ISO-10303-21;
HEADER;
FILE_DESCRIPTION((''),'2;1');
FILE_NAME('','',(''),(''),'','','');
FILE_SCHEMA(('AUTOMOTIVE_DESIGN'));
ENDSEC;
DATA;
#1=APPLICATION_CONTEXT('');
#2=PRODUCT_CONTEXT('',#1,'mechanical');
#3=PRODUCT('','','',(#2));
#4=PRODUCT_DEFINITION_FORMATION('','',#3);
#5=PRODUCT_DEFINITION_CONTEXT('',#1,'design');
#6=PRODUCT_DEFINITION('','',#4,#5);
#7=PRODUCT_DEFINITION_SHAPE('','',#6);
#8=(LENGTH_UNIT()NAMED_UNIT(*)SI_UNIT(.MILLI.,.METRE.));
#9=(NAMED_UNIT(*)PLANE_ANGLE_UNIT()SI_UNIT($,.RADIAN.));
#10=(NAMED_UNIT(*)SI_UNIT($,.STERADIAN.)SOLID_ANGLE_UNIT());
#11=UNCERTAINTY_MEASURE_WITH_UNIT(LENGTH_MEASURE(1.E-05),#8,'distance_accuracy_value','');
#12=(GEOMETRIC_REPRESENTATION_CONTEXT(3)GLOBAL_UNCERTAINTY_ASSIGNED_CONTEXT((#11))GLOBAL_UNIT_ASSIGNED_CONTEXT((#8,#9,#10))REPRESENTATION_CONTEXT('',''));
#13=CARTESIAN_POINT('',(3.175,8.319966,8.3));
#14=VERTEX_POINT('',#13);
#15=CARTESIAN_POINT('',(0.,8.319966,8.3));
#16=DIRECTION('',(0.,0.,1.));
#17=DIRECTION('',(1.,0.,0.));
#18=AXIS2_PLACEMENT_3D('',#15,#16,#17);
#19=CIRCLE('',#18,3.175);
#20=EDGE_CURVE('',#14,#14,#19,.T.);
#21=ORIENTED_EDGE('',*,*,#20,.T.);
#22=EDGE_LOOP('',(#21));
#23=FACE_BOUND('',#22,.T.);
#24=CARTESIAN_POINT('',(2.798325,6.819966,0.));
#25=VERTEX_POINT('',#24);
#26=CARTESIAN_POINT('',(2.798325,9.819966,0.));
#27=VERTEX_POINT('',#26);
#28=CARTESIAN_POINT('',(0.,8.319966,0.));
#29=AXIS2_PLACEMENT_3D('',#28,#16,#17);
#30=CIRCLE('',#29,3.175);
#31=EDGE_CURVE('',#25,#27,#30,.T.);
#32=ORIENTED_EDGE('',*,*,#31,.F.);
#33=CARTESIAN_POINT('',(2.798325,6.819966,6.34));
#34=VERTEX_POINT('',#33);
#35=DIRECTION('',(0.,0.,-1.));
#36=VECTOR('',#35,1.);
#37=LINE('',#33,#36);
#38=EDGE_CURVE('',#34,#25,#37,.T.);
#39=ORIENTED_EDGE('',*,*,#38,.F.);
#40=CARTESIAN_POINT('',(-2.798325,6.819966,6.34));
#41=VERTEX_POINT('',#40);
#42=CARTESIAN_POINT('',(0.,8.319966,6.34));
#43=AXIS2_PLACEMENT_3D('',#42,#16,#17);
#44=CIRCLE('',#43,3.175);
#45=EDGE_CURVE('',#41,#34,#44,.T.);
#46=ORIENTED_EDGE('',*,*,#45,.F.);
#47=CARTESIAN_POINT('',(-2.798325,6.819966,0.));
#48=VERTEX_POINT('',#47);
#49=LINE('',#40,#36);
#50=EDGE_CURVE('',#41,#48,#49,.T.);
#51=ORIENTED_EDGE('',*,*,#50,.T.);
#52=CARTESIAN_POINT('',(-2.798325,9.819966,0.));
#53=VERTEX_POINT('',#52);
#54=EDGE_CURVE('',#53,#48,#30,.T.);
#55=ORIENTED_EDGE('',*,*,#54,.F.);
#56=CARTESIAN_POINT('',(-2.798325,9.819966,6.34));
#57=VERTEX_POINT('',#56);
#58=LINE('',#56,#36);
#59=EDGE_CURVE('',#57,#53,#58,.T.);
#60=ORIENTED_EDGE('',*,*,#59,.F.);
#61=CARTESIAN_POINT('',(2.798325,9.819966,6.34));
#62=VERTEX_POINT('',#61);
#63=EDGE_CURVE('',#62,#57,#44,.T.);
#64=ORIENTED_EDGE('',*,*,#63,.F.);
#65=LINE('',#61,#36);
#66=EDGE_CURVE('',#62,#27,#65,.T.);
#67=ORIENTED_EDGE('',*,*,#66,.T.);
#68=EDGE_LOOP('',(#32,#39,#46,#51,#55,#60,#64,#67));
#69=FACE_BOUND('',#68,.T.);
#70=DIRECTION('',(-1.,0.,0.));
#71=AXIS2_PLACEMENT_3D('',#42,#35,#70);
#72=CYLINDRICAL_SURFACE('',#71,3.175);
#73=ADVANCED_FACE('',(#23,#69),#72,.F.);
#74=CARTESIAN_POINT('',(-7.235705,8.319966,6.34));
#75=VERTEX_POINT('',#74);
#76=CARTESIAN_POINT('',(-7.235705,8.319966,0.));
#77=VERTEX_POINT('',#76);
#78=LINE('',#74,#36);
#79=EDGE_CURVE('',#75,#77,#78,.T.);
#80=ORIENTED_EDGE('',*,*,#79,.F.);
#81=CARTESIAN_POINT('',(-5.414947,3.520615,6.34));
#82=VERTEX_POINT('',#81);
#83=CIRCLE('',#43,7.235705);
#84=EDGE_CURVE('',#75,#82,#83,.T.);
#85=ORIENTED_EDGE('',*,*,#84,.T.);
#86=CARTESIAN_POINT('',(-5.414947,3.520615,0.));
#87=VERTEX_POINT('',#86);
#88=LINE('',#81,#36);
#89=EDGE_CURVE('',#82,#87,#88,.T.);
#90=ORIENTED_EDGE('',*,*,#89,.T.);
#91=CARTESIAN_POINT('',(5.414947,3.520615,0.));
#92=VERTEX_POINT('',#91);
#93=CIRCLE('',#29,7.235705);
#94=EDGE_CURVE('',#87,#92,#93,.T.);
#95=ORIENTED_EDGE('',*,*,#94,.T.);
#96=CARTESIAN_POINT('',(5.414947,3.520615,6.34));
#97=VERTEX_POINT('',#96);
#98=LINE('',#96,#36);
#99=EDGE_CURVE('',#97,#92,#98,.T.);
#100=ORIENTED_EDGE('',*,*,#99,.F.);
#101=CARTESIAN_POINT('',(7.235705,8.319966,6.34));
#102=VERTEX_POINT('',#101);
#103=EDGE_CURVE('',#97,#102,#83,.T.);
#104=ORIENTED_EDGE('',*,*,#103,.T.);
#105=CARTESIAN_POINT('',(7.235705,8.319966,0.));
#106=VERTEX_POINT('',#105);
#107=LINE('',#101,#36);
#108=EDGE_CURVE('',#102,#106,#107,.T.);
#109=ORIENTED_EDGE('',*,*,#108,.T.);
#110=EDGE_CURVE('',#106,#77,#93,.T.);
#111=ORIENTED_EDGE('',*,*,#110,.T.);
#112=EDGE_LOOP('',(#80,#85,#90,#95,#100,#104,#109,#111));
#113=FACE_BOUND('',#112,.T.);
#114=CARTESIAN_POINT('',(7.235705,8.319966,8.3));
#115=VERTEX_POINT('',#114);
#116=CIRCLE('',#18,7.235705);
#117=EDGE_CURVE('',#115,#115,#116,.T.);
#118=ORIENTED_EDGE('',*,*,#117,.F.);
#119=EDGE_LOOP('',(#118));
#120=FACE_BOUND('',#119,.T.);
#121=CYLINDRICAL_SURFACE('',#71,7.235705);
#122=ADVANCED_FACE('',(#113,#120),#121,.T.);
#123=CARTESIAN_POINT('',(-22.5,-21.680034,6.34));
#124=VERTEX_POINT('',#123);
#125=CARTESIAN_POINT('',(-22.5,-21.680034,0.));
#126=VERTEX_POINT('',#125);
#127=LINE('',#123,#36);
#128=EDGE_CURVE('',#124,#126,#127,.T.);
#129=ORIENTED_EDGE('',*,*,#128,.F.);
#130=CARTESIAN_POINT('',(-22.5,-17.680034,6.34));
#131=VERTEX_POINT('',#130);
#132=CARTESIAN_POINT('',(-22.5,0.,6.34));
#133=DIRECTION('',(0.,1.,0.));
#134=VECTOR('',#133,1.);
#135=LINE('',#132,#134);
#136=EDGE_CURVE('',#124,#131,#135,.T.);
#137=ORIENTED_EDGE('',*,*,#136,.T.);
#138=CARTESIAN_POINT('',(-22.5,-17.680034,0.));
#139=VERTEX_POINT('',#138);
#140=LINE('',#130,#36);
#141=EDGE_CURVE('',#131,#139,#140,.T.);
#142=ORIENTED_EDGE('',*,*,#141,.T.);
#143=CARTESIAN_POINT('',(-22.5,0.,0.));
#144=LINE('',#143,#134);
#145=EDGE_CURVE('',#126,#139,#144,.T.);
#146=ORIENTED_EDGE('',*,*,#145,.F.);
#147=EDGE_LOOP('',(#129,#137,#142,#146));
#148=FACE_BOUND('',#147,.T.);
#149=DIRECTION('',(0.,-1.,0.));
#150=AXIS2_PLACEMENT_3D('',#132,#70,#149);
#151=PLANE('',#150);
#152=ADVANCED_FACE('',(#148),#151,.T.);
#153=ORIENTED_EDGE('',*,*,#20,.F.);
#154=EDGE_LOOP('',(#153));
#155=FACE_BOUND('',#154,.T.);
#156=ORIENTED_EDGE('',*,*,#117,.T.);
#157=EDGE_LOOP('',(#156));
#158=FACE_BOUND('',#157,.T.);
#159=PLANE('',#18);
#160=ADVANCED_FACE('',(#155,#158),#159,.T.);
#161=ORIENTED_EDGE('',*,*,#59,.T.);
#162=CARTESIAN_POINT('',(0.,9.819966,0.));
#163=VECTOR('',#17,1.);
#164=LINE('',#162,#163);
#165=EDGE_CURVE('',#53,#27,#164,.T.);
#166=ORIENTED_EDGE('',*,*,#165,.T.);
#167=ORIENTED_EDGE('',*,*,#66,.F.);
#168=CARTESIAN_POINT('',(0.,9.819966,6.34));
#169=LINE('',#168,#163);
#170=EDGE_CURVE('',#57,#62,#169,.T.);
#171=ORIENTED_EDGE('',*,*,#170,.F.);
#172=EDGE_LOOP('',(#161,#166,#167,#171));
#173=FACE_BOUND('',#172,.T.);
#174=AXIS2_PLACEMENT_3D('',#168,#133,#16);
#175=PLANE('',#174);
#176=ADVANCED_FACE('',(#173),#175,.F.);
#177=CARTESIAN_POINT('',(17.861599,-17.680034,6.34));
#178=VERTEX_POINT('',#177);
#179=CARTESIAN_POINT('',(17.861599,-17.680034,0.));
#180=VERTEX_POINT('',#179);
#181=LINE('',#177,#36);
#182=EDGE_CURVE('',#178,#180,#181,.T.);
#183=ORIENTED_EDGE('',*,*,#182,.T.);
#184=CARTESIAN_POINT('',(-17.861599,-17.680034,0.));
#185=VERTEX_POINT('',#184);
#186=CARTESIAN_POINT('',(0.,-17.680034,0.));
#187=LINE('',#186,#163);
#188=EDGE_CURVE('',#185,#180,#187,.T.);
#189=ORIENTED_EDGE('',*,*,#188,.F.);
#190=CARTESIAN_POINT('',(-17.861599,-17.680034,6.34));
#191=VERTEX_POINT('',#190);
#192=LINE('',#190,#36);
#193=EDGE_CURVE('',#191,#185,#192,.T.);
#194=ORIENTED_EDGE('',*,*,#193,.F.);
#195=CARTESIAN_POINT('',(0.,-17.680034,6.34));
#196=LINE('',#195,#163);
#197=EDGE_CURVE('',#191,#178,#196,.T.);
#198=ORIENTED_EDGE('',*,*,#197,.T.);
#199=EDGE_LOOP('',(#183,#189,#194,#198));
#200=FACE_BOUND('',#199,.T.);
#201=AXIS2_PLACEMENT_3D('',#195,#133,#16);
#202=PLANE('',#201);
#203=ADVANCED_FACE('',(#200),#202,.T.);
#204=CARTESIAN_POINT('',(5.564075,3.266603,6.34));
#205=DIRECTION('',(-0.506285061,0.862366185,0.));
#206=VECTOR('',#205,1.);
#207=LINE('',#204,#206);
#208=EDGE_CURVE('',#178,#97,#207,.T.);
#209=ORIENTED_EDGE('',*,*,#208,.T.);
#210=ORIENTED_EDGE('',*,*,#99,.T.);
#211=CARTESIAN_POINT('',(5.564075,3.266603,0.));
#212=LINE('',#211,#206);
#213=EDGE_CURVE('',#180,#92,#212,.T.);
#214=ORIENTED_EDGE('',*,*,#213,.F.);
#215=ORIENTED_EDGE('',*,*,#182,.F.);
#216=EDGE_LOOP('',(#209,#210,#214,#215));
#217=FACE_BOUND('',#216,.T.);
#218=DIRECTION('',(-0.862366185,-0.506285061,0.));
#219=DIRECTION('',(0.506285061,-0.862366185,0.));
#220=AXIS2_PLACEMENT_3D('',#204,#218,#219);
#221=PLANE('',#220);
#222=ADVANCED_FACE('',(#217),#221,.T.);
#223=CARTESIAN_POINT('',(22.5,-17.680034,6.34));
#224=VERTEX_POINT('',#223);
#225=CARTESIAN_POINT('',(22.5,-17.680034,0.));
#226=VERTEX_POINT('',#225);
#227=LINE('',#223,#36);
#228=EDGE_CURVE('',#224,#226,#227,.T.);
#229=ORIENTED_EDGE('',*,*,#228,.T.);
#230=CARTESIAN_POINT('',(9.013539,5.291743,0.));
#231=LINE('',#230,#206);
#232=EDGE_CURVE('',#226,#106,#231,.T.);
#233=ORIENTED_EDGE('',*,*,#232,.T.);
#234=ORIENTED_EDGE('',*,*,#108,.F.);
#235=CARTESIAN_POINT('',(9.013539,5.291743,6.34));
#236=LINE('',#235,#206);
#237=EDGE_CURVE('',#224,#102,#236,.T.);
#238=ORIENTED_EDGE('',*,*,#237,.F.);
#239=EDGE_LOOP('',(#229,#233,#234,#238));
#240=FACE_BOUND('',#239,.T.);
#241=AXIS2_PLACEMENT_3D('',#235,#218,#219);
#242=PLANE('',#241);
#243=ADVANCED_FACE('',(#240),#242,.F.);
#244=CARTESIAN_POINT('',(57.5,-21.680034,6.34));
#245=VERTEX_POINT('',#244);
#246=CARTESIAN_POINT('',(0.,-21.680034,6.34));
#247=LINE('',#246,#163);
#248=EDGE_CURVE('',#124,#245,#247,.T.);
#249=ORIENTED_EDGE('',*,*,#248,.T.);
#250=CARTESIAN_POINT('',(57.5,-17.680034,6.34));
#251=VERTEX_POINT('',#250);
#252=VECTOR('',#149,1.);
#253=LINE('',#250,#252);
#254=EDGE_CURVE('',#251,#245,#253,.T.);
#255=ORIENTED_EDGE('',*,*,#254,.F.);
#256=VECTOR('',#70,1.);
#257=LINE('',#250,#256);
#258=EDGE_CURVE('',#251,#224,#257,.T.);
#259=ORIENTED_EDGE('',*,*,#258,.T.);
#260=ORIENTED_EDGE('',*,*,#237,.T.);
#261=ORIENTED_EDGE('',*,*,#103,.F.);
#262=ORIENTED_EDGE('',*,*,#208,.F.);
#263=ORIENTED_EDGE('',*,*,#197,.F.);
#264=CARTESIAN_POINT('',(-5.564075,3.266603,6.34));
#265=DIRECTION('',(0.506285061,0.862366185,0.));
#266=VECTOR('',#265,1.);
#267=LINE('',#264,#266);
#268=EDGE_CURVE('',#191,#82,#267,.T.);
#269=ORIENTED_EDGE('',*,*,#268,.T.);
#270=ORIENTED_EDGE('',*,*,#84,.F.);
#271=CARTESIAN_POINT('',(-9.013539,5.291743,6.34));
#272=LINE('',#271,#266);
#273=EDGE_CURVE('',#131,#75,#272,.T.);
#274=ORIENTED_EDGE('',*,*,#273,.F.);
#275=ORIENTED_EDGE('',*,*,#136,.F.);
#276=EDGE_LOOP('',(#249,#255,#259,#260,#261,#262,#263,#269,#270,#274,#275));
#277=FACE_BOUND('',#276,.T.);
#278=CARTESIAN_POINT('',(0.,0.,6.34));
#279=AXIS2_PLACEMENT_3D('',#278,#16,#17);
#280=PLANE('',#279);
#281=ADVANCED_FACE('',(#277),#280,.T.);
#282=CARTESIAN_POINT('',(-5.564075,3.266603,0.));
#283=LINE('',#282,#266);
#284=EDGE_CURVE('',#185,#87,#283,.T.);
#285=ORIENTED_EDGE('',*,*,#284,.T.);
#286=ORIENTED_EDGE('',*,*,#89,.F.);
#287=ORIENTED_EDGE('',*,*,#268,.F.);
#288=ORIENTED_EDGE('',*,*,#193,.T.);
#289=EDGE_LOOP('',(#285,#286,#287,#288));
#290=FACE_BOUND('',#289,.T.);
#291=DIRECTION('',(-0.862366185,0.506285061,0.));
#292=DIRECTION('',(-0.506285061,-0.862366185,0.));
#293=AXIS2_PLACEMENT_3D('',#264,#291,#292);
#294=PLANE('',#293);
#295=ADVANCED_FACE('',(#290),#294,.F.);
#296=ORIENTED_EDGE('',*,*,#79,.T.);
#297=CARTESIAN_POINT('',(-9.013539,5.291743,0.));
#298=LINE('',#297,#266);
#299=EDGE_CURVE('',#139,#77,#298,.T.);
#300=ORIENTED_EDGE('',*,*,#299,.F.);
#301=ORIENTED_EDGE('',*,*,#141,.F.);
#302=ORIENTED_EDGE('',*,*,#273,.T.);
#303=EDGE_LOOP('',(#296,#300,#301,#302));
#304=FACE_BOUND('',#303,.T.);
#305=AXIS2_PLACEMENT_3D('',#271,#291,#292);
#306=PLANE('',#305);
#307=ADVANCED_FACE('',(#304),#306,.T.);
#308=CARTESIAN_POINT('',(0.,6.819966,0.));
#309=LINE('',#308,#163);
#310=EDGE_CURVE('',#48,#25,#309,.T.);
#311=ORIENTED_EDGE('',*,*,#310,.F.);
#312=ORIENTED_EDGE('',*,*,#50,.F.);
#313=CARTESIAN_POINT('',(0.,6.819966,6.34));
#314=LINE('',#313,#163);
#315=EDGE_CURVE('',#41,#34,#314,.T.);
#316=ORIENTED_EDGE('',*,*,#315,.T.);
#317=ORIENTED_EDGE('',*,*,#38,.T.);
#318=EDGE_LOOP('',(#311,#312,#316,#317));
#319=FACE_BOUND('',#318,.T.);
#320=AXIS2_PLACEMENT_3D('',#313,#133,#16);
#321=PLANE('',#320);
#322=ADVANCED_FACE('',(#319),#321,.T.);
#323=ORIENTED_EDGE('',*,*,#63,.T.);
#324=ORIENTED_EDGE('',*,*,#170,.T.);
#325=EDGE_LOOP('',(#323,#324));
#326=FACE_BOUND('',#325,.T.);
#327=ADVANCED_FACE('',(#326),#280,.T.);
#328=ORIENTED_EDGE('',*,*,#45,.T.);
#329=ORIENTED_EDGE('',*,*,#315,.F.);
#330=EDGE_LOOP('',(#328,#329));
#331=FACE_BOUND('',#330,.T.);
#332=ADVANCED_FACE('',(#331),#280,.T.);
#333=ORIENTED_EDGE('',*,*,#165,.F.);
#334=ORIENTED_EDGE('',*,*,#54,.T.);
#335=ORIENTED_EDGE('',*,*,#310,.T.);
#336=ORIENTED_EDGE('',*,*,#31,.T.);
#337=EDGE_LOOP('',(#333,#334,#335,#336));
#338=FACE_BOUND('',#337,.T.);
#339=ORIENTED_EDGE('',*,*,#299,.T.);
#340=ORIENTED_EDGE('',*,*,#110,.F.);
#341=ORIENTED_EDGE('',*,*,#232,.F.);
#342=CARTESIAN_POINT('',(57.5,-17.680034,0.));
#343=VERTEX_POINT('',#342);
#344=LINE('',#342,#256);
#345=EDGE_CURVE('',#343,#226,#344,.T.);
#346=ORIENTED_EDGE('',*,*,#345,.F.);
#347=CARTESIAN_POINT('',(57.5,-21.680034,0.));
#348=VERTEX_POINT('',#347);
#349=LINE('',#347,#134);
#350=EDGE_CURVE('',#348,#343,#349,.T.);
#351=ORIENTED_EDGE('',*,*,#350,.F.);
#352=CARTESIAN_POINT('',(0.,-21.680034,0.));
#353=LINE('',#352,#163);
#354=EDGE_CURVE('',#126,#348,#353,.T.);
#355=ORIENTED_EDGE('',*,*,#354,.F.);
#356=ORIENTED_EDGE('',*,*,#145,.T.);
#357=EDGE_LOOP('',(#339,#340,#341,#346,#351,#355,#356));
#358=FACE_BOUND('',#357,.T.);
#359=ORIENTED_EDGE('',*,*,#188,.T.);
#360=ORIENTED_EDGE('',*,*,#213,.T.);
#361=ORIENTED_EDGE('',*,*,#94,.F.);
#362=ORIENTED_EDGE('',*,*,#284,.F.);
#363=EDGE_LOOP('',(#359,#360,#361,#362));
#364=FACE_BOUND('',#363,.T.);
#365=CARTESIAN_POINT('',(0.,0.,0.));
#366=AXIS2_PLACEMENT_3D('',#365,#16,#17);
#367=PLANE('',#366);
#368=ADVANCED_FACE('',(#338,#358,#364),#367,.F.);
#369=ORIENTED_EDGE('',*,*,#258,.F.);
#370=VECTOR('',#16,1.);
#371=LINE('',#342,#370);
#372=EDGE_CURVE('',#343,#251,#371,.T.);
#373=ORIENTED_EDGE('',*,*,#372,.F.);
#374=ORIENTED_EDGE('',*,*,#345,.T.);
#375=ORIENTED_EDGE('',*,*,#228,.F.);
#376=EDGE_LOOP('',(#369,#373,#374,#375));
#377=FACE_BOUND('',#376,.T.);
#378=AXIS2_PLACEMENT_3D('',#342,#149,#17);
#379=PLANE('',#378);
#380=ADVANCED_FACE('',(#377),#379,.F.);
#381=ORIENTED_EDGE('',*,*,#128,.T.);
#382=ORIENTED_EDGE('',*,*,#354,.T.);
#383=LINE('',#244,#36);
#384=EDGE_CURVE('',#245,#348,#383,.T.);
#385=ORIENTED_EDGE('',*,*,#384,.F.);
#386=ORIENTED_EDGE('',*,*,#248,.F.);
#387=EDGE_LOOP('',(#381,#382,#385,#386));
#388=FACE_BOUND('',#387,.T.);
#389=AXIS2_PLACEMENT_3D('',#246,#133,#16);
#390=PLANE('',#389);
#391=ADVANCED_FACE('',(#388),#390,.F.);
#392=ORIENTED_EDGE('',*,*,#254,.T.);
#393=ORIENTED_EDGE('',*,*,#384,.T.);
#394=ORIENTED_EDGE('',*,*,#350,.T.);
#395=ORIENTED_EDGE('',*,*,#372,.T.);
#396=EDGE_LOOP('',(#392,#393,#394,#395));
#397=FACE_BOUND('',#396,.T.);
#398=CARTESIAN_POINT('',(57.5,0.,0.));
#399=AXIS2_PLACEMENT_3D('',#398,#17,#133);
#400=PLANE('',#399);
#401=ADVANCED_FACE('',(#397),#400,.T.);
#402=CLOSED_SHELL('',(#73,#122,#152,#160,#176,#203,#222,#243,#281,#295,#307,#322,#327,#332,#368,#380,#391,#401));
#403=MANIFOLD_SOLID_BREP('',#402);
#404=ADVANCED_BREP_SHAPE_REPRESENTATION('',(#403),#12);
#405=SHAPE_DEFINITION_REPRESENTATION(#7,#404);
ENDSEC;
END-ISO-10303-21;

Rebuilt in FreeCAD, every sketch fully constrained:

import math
import FreeCAD as App
import Part
import Sketcher

V = App.Vector


def add_polygon(sketch, points):
    """Adds a closed chain of lines whose ends are joined by coincident constraints."""
    first, n = sketch.GeometryCount, len(points)
    for a, b in zip(points, points[1:] + points[:1]):
        sketch.addGeometry(Part.LineSegment(App.Vector(*a, 0), App.Vector(*b, 0)), False)
    for i in range(n):
        sketch.addConstraint(Sketcher.Constraint("Coincident", first + i, 2, first + (i + 1) % n, 1))

doc = App.newDocument("Part")
body = doc.addObject("PartDesign::Body", "Body")

# Sketch on XY plane
sketch1 = body.newObject("Sketcher::SketchObject", "Sketch")
sketch1.AttachmentSupport = (doc.getObject("XY_Plane"), [""])
sketch1.MapMode = "FlatFace"
sketch1.addGeometry([
    Part.ArcOfCircle(Part.Circle(V(0, 8.319966, 0), V(0, 0, 1), 7.235705), math.radians(0), math.radians(180)),  # 0
    Part.LineSegment(V(-7.235705, 8.319966, 0), V(-22.5, -17.680034, 0)),  # 1
    Part.LineSegment(V(-22.5, -17.680034, 0), V(-22.5, -21.680034, 0)),  # 2
    Part.LineSegment(V(-22.5, -21.680034, 0), V(22.5, -21.680034, 0)),  # 3
    Part.LineSegment(V(22.5, -21.680034, 0), V(22.5, -17.680034, 0)),  # 4
    Part.LineSegment(V(22.5, -17.680034, 0), V(7.235705, 8.319966, 0)),  # 5
    Part.LineSegment(V(-17.861599, -17.680034, 0), V(-5.414947, 3.520615, 0)),  # 6
    Part.ArcOfCircle(Part.Circle(V(0, 8.319966, 0), V(0, 0, 1), 7.235705), math.radians(-138.448933), math.radians(-41.551067)),  # 7
    Part.LineSegment(V(5.414947, 3.520615, 0), V(17.861599, -17.680034, 0)),  # 8
    Part.LineSegment(V(17.861599, -17.680034, 0), V(-17.861599, -17.680034, 0)),  # 9
    Part.ArcOfCircle(Part.Circle(V(0, 8.319966, 0), V(0, 0, 1), 3.175), math.radians(151.807139), math.radians(208.192861)),  # 10
    Part.LineSegment(V(-2.798325, 9.819966, 0), V(2.798325, 9.819966, 0)),  # 11
    Part.ArcOfCircle(Part.Circle(V(0, 8.319966, 0), V(0, 0, 1), 3.175), math.radians(0), math.radians(28.192861)),  # 12
    Part.ArcOfCircle(Part.Circle(V(0, 8.319966, 0), V(0, 0, 1), 3.175), math.radians(-28.192861), math.radians(0)),  # 13
    Part.LineSegment(V(2.798325, 6.819966, 0), V(-2.798325, 6.819966, 0)),  # 14
], False)
sketch1.addConstraint([
    Sketcher.Constraint("Coincident", 0, 2, 1, 1),
    Sketcher.Constraint("Coincident", 1, 2, 2, 1),
    Sketcher.Constraint("Coincident", 2, 2, 3, 1),
    Sketcher.Constraint("Coincident", 3, 2, 4, 1),
    Sketcher.Constraint("Coincident", 4, 2, 5, 1),
    Sketcher.Constraint("Coincident", 5, 2, 0, 1),
    Sketcher.Constraint("Coincident", 6, 2, 7, 1),
    Sketcher.Constraint("Coincident", 7, 2, 8, 1),
    Sketcher.Constraint("Coincident", 8, 2, 9, 1),
    Sketcher.Constraint("Coincident", 9, 2, 6, 1),
    Sketcher.Constraint("Coincident", 10, 1, 11, 1),
    Sketcher.Constraint("Coincident", 11, 2, 12, 2),
    Sketcher.Constraint("Tangent", 12, 1, 13, 2),
    Sketcher.Constraint("Coincident", 13, 1, 14, 1),
    Sketcher.Constraint("Coincident", 14, 2, 10, 2),
    Sketcher.Constraint("Vertical", 2),
    Sketcher.Constraint("Horizontal", 3),
    Sketcher.Constraint("Vertical", 4),
    Sketcher.Constraint("Horizontal", 9),
    Sketcher.Constraint("Horizontal", 11),
    Sketcher.Constraint("Horizontal", 14),
    Sketcher.Constraint("Coincident", 7, 3, 0, 3),
    Sketcher.Constraint("Coincident", 10, 3, 0, 3),
    Sketcher.Constraint("Coincident", 12, 3, 0, 3),
    Sketcher.Constraint("Equal", 0, 7),
    Sketcher.Constraint("Equal", 10, 12),
    Sketcher.Constraint("Equal", 12, 13),
    Sketcher.Constraint("Symmetric", 1, 2, 4, 2, -2),
    Sketcher.Constraint("Symmetric", 0, 2, 5, 2, -2),
    Sketcher.Constraint("Parallel", 1, 6),
    Sketcher.Constraint("Parallel", 5, 8),
    Sketcher.Constraint("Horizontal", 13, 3, 0, 2),
    Sketcher.Constraint("Horizontal", 6, 2, 7, 2),
    Sketcher.Constraint("Horizontal", 4, 2, 8, 2),
    Sketcher.Constraint("Horizontal", 5, 2, 12, 1),
    Sketcher.Constraint("Vertical", 11, 2, 13, 1),
    Sketcher.Constraint("DistanceX", 3, 1, 3, 2, 45.0),
    Sketcher.Constraint("DistanceY", 2, 2, 2, 1, 4.0),
    Sketcher.Constraint("Radius", 10, 3.175),
    Sketcher.Constraint("DistanceY", 1, 2, 0, 2, 26.0),
    Sketcher.Constraint("DistanceY", 13, 1, 11, 2, 3.0),
    Sketcher.Constraint("DistanceX", 9, 2, 9, 1, 35.723198),
    Sketcher.Constraint("Radius", 0, 7.235705),
    Sketcher.Constraint("DistanceY", -1, 1, 0, 3, 8.319966),
])
pad1 = body.newObject("PartDesign::Pad", "Pad")
pad1.Profile = sketch1
pad1.Length = 6.34

# Sketch on XY plane
sketch2 = body.newObject("Sketcher::SketchObject", "Sketch001")
sketch2.AttachmentSupport = (doc.getObject("XY_Plane"), [""])
sketch2.MapMode = "FlatFace"
sketch2.AttachmentOffset = App.Placement(V(0, 0, 6.34), App.Rotation())
sketch2.addGeometry([
    Part.Circle(V(0, 8.319966, 0), V(0, 0, 1), 7.235705),
    Part.Circle(V(0, 8.319966, 0), V(0, 0, 1), 3.175),
], False)
sketch2.addConstraint([
    Sketcher.Constraint("Coincident", 1, 3, 0, 3),
    Sketcher.Constraint("PointOnObject", 0, 3, -2),
    Sketcher.Constraint("Diameter", 1, 6.35),
    Sketcher.Constraint("Diameter", 0, 14.471411),
    Sketcher.Constraint("DistanceY", -1, 1, 0, 3, 8.319966),
])
pad2 = body.newObject("PartDesign::Pad", "Pad001")
pad2.Profile = sketch2
pad2.Length = 1.96

# Sketch on YZ plane
sketch3 = body.newObject("Sketcher::SketchObject", "Sketch002")
sketch3.AttachmentSupport = (doc.getObject("YZ_Plane"), [""])
sketch3.MapMode = "FlatFace"
sketch3.AttachmentOffset = App.Placement(V(0, 0, 22.5), App.Rotation())
add_polygon(sketch3, [(-17.680034, 6.34), (-21.680034, 6.34), (-21.680034, 0), (-17.680034, 0)])  # lines 0-3
sketch3.addConstraint([
    Sketcher.Constraint("Horizontal", 0),
    Sketcher.Constraint("Vertical", 1),
    Sketcher.Constraint("Horizontal", 2),
    Sketcher.Constraint("Vertical", 3),
    Sketcher.Constraint("PointOnObject", 1, 2, -1),
    Sketcher.Constraint("DistanceX", 0, 2, 0, 1, 4.0),
    Sketcher.Constraint("DistanceY", 1, 2, 1, 1, 6.34),
    Sketcher.Constraint("DistanceX", 0, 2, -1, 1, 21.680034),
])
pad3 = body.newObject("PartDesign::Pad", "Pad002")
pad3.Profile = sketch3
pad3.Length = 35

doc.recompute()
